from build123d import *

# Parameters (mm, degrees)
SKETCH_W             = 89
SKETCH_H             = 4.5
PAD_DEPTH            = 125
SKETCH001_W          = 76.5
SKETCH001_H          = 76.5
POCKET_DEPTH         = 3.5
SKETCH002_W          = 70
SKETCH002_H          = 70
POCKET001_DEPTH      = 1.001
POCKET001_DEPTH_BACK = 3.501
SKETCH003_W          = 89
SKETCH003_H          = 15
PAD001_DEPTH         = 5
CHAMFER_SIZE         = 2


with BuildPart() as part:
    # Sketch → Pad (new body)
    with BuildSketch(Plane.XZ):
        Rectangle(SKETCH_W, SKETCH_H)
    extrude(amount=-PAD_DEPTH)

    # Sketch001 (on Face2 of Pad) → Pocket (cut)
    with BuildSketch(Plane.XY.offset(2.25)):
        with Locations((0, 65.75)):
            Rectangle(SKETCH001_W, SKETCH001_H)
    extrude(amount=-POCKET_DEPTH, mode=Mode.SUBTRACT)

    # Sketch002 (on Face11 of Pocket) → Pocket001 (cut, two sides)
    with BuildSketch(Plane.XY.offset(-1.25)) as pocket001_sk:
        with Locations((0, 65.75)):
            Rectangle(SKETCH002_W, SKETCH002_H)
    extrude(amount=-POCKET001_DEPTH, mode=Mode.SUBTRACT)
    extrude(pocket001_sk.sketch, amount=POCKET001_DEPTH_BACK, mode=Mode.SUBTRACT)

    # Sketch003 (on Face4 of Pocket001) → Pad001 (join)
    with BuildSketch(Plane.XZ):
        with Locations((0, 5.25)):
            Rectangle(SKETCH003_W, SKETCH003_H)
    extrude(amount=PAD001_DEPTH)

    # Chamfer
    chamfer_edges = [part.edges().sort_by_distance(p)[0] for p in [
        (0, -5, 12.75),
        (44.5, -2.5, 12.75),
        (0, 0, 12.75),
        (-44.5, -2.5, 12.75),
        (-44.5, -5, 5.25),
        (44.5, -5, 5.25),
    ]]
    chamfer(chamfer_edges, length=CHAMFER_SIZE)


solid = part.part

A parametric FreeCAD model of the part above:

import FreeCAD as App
import Part
import Sketcher

V = App.Vector
Q = App.Units.Quantity


def edges_at(feature, points):
    """Names of the edges that pass closest to the given points."""
    edges = feature.Shape.Edges
    near = lambda p: min(range(len(edges)), key=lambda i: edges[i].distToShape(Part.Vertex(*p))[0])
    return sorted({f"Edge{near(p) + 1}" for p in points})

doc = App.newDocument("Part")
body = doc.addObject("PartDesign::Body", "Body")

# Sketch on XZ plane
sketch1 = body.newObject("Sketcher::SketchObject", "Sketch")
sketch1.AttachmentSupport = (doc.getObject("XZ_Plane"), [""])
sketch1.MapMode = "FlatFace"
sketch1.addGeometry([
    Part.LineSegment(V(-44.5, 2.2, 0), V(-44.5, -2.2, 0)),
    Part.LineSegment(V(-44.5, -2.2, 0), V(44.5, -2.2, 0)),
    Part.LineSegment(V(44.5, -2.2, 0), V(44.5, 2.2, 0)),
    Part.LineSegment(V(44.5, 2.2, 0), V(-44.5, 2.2, 0)),
], False)
sketch1.addConstraint([
    Sketcher.Constraint("Coincident", 0, 2, 1, 1),
    Sketcher.Constraint("Coincident", 1, 2, 2, 1),
    Sketcher.Constraint("Coincident", 2, 2, 3, 1),
    Sketcher.Constraint("Coincident", 3, 2, 0, 1),
    Sketcher.Constraint("Vertical", 0),
    Sketcher.Constraint("Horizontal", 1),
    Sketcher.Constraint("Vertical", 2),
    Sketcher.Constraint("Horizontal", 3),
    Sketcher.Constraint("Symmetric", 0, 2, 2, 2, -1, 1),
    Sketcher.Constraint("DistanceX", 1, 1, 1, 2, Q("89 mm")),
    Sketcher.Constraint("DistanceY", 0, 2, 0, 1, Q("4.5 mm")),
])
pad1 = body.newObject("PartDesign::Pad", "Pad")
pad1.Profile = sketch1
pad1.Length = 125
pad1.Reversed = True

# Sketch on XY plane
sketch2 = body.newObject("Sketcher::SketchObject", "Sketch001")
sketch2.AttachmentSupport = (doc.getObject("XY_Plane"), [""])
sketch2.MapMode = "FlatFace"
sketch2.AttachmentOffset = App.Placement(V(0, 0, 2.25), App.Rotation())
sketch2.addGeometry([
    Part.LineSegment(V(-38, 104, 0), V(-38, 28, 0)),
    Part.LineSegment(V(-38, 28, 0), V(38, 28, 0)),
    Part.LineSegment(V(38, 28, 0), V(38, 104, 0)),
    Part.LineSegment(V(38, 104, 0), V(-38, 104, 0)),
], False)
sketch2.addConstraint([
    Sketcher.Constraint("Coincident", 0, 2, 1, 1),
    Sketcher.Constraint("Coincident", 1, 2, 2, 1),
    Sketcher.Constraint("Coincident", 2, 2, 3, 1),
    Sketcher.Constraint("Coincident", 3, 2, 0, 1),
    Sketcher.Constraint("Vertical", 0),
    Sketcher.Constraint("Horizontal", 1),
    Sketcher.Constraint("Vertical", 2),
    Sketcher.Constraint("Horizontal", 3),
    Sketcher.Constraint("Equal", 3, 0),
    Sketcher.Constraint("DistanceX", 1, 1, 1, 2, Q("76.5 mm")),
    Sketcher.Constraint("DistanceY", -1, 1, 2, 2, Q("104 mm")),
    Sketcher.Constraint("DistanceX", 0, 2, -1, 1, Q("38.25 mm")),
])
pocket1 = body.newObject("PartDesign::Pocket", "Pocket")
pocket1.Profile = sketch2
pocket1.Length = 3.5

# Sketch on XY plane
sketch3 = body.newObject("Sketcher::SketchObject", "Sketch002")
sketch3.AttachmentSupport = (doc.getObject("XY_Plane"), [""])
sketch3.MapMode = "FlatFace"
sketch3.AttachmentOffset = App.Placement(V(0, 0, -1.25), App.Rotation())
sketch3.addGeometry([
    Part.LineSegment(V(-35, 101, 0), V(-35, 31, 0)),
    Part.LineSegment(V(-35, 31, 0), V(35, 31, 0)),
    Part.LineSegment(V(35, 31, 0), V(35, 101, 0)),
    Part.LineSegment(V(35, 101, 0), V(-35, 101, 0)),
], False)
sketch3.addConstraint([
    Sketcher.Constraint("Coincident", 0, 2, 1, 1),
    Sketcher.Constraint("Coincident", 1, 2, 2, 1),
    Sketcher.Constraint("Coincident", 2, 2, 3, 1),
    Sketcher.Constraint("Coincident", 3, 2, 0, 1),
    Sketcher.Constraint("Vertical", 0),
    Sketcher.Constraint("Horizontal", 1),
    Sketcher.Constraint("Vertical", 2),
    Sketcher.Constraint("Horizontal", 3),
    Sketcher.Constraint("Equal", 3, 0),
    Sketcher.Constraint("DistanceX", 1, 1, 1, 2, Q("70 mm")),
    Sketcher.Constraint("DistanceX", 0, 2, -1, 1, Q("35 mm")),
    Sketcher.Constraint("DistanceY", -1, 1, 0, 2, Q("30.75 mm")),
])
pocket2 = body.newObject("PartDesign::Pocket", "Pocket001")
pocket2.Profile = sketch3
pocket2.Type = "ThroughAll"
pocket2.Midplane = True

# Sketch on XZ plane
sketch4 = body.newObject("Sketcher::SketchObject", "Sketch003")
sketch4.AttachmentSupport = (doc.getObject("XZ_Plane"), [""])
sketch4.MapMode = "FlatFace"
sketch4.addGeometry([
    Part.LineSegment(V(-44, 13, 0), V(-44, -2, 0)),
    Part.LineSegment(V(-44, -2, 0), V(44, -2, 0)),
    Part.LineSegment(V(44, -2, 0), V(44, 13, 0)),
    Part.LineSegment(V(44, 13, 0), V(-44, 13, 0)),
], False)
sketch4.addConstraint([
    Sketcher.Constraint("Coincident", 0, 2, 1, 1),
    Sketcher.Constraint("Coincident", 1, 2, 2, 1),
    Sketcher.Constraint("Coincident", 2, 2, 3, 1),
    Sketcher.Constraint("Coincident", 3, 2, 0, 1),
    Sketcher.Constraint("Vertical", 0),
    Sketcher.Constraint("Horizontal", 1),
    Sketcher.Constraint("Vertical", 2),
    Sketcher.Constraint("Horizontal", 3),
    Sketcher.Constraint("DistanceX", 1, 1, 1, 2, Q("89 mm")),
    Sketcher.Constraint("DistanceY", 0, 2, 0, 1, Q("15 mm")),
    Sketcher.Constraint("DistanceX", 0, 2, -1, 1, Q("44.5 mm")),
    Sketcher.Constraint("DistanceY", 0, 2, -1, 1, Q("2.25 mm")),
])
pad2 = body.newObject("PartDesign::Pad", "Pad001")
pad2.Profile = sketch4
pad2.Length = 5
doc.recompute()

chamfer = body.newObject("PartDesign::Chamfer", "Chamfer")
chamfer.Base = (pad2, edges_at(pad2, [
    (0, -5, 12.75),
    (44.5, -2.5, 12.75),
    (0, 0, 12.75),
    (-44.5, -2.5, 12.75),
    (-44.5, -5, 5.25),
    (44.5, -5, 5.25),
]))
chamfer.Size = 2

doc.recompute()
